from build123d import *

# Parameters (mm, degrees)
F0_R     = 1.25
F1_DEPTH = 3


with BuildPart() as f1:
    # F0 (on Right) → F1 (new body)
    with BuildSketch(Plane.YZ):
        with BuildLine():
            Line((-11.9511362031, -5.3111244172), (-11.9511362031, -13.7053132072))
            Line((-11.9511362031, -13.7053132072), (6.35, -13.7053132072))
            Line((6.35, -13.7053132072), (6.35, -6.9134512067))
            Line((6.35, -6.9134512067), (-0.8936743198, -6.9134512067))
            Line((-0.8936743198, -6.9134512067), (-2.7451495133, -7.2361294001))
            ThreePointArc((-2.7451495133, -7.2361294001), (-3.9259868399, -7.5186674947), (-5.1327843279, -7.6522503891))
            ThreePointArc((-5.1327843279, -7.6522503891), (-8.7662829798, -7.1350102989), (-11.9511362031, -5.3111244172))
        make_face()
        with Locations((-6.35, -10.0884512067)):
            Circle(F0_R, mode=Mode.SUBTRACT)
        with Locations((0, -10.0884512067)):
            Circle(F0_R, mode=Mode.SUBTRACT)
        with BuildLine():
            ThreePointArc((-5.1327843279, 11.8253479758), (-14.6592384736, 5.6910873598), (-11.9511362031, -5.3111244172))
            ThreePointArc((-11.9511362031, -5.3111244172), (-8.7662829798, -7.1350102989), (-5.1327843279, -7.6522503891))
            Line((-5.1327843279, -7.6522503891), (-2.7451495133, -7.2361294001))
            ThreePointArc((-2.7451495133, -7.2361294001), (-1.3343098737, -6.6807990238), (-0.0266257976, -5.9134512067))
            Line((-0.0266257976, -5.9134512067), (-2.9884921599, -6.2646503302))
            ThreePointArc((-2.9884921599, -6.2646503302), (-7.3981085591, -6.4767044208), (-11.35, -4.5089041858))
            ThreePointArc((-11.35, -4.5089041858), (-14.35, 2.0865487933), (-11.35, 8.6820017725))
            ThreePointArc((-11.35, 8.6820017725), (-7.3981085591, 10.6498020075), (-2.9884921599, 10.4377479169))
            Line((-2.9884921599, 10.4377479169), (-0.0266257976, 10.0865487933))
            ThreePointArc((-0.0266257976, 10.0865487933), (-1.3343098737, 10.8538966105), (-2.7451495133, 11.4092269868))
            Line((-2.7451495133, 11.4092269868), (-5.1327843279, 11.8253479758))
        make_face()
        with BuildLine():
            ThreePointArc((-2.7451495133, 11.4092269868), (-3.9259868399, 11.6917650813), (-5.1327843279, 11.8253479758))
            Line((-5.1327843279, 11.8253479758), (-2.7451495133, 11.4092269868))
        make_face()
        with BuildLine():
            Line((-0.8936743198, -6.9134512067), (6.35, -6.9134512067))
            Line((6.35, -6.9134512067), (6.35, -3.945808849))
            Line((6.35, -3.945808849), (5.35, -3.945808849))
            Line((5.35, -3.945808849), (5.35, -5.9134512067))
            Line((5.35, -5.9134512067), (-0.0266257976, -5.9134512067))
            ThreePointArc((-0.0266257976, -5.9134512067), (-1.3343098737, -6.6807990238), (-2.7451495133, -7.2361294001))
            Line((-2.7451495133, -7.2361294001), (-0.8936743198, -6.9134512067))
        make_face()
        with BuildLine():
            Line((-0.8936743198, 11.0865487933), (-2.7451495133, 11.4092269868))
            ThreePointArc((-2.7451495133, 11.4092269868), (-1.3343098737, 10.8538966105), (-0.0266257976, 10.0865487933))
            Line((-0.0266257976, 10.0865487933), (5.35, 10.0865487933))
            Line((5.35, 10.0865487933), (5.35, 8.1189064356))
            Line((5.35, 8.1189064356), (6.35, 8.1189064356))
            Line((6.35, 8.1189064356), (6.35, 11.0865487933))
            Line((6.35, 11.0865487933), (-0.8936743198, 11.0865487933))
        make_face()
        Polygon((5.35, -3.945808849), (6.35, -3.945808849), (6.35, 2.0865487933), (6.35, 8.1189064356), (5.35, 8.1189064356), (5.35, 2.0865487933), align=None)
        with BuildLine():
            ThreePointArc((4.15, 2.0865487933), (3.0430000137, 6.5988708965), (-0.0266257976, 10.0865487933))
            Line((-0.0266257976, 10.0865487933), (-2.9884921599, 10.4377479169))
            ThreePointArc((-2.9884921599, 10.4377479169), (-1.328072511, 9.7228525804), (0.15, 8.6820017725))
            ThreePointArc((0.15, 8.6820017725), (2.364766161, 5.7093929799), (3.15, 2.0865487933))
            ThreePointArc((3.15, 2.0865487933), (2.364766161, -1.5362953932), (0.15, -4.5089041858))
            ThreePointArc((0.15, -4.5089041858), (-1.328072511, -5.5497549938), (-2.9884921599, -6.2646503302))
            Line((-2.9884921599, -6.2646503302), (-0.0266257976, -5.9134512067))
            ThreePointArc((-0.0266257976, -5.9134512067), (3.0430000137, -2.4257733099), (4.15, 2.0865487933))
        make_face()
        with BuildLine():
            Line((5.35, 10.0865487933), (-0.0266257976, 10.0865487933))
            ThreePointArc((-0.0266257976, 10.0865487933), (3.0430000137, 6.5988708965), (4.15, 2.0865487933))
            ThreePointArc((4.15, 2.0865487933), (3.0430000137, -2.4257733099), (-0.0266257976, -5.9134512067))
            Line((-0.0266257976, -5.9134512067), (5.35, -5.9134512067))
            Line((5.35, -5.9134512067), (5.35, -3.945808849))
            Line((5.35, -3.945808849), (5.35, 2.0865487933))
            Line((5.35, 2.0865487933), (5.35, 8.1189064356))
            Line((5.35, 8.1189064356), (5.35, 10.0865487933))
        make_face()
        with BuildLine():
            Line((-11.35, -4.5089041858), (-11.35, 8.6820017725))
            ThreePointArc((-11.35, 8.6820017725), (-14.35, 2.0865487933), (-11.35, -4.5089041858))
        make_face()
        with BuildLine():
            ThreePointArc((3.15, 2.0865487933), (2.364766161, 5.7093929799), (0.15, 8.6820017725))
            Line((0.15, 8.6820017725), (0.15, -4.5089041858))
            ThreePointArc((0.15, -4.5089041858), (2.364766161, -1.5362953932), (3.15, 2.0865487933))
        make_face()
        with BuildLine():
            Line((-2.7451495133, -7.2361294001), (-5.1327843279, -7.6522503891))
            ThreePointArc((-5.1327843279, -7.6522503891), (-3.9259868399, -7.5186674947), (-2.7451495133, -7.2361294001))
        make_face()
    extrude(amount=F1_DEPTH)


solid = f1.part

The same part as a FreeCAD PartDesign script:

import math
import FreeCAD as App
import Part
import Sketcher
from FreeCAD import Vector

doc = App.newDocument("Part")
body = doc.addObject("PartDesign::Body", "Body")

# Sketch on YZ plane
sketch1 = body.newObject("Sketcher::SketchObject", "Sketch")
sketch1.AttachmentSupport = (doc.getObject("YZ_Plane"), [""])
sketch1.MapMode = "FlatFace"
sketch1.addGeometry([
    Part.LineSegment(Vector(6.3, -13.7, 0), Vector(6.3, 11.1, 0)),  # 0
    Part.LineSegment(Vector(6.3, 11.1, 0), Vector(-0.9, 11.1, 0)),  # 1
    Part.LineSegment(Vector(-0.9, 11.1, 0), Vector(-2.7, 11.4, 0)),  # 2
    Part.ArcOfCircle(Part.Circle(Vector(-5.6, 2.1, 0), Vector(0, 0, 1), 9.8), math.radians(72.97), math.radians(87.25)),  # 3
    Part.ArcOfCircle(Part.Circle(Vector(-5.6, 2.1, 0), Vector(0, 0, 1), 9.8), math.radians(87), math.radians(229)),  # 4
    Part.LineSegment(Vector(-12, -5.3, 0), Vector(-12, -13.7, 0)),  # 5
    Part.LineSegment(Vector(-12, -13.7, 0), Vector(6.3, -13.7, 0)),  # 6
    Part.ArcOfCircle(Part.Circle(Vector(-5.6, 2.1, 0), Vector(0, 0, 1), 8.8), math.radians(-131), math.radians(-73)),  # 7
    Part.LineSegment(Vector(-11.3, -4.5, 0), Vector(-11.3, 8.7, 0)),  # 8
    Part.ArcOfCircle(Part.Circle(Vector(-5.6, 2.1, 0), Vector(0, 0, 1), 8.8), math.radians(73), math.radians(131)),  # 9
    Part.ArcOfCircle(Part.Circle(Vector(-5.6, 2.1, 0), Vector(0, 0, 1), 8.8), math.radians(49), math.radians(73)),  # 10
    Part.LineSegment(Vector(0.1, 8.7, 0), Vector(0.1, -4.5, 0)),  # 11
    Part.ArcOfCircle(Part.Circle(Vector(-5.6, 2.1, 0), Vector(0, 0, 1), 8.7), math.radians(-73), math.radians(-49)),  # 12
    Part.Circle(Vector(-6.3, -10.1, 0), Vector(0, 0, 1), 1.2),  # 13
    Part.Circle(Vector(0, -10.1, 0), Vector(0, 0, 1), 1.2),  # 14
], False)
sketch1.addConstraint([
    Sketcher.Constraint("Coincident", 0, 2, 1, 1),
    Sketcher.Constraint("Coincident", 1, 2, 2, 1),
    Sketcher.Constraint("Coincident", 2, 2, 3, 1),
    Sketcher.Constraint("Tangent", 3, 2, 4, 1),
    Sketcher.Constraint("Coincident", 4, 2, 5, 1),
    Sketcher.Constraint("Coincident", 5, 2, 6, 1),
    Sketcher.Constraint("Coincident", 6, 2, 0, 1),
    Sketcher.Constraint("Coincident", 7, 1, 8, 1),
    Sketcher.Constraint("Coincident", 8, 2, 9, 2),
    Sketcher.Constraint("Tangent", 9, 1, 10, 2),
    Sketcher.Constraint("Coincident", 10, 1, 11, 1),
    Sketcher.Constraint("Coincident", 11, 2, 12, 2),
    Sketcher.Constraint("Tangent", 12, 1, 7, 2),
    Sketcher.Constraint("Vertical", 0),
    Sketcher.Constraint("Horizontal", 1),
    Sketcher.Constraint("Vertical", 5),
    Sketcher.Constraint("Horizontal", 6),
    Sketcher.Constraint("Vertical", 8),
    Sketcher.Constraint("Vertical", 11),
    Sketcher.Constraint("Coincident", 7, 3, 3, 3),
    Sketcher.Constraint("Coincident", 9, 3, 3, 3),
    Sketcher.Constraint("Equal", 3, 4),
    Sketcher.Constraint("Equal", 7, 9),
    Sketcher.Constraint("Equal", 9, 10),
    Sketcher.Constraint("Equal", 10, 12),
    Sketcher.Constraint("Equal", 13, 14),
    Sketcher.Constraint("PointOnObject", 14, 3, -2),
    Sketcher.Constraint("Horizontal", 13, 3, 14, 3),
    Sketcher.Constraint("Horizontal", 8, 2, 10, 1),
    Sketcher.Constraint("Vertical", 9, 1, 12, 1),
    Sketcher.Constraint("Diameter", 13, 2.5),
    Sketcher.Constraint("Radius", 3, 9.75),
    Sketcher.Constraint("Radius", 7, 8.75),
    Sketcher.Constraint("DistanceY", 12, 3, 0, 2, 9.0),
    Sketcher.Constraint("DistanceX", 7, 1, 13, 3, 5.0),
    Sketcher.Constraint("DistanceX", 3, 3, -1, 1, 5.6),
    Sketcher.Constraint("DistanceX", 13, 3, 6, 2, 12.7),
    Sketcher.Constraint("DistanceX", 10, 1, 0, 2, 6.2),
    Sketcher.Constraint("DistanceY", -1, 1, 8, 2, 8.682002),
    Sketcher.Constraint("DistanceY", 13, 3, 3, 3, 12.175),
    Sketcher.Constraint("DistanceY", 5, 2, 5, 1, 8.394189),
    Sketcher.Constraint("DistanceY", 1, 2, 3, 2, 0.738799),
    Sketcher.Constraint("DistanceY", 9, 1, 1, 2, 0.648801),
    Sketcher.Constraint("DistanceX", 1, 2, 1, 1, 7.243674),
    Sketcher.Constraint("DistanceX", 6, 1, 6, 2, 18.301136),
    Sketcher.Constraint("DistanceX", 2, 2, -1, 1, 2.74515),
])
pad1 = body.newObject("PartDesign::Pad", "Pad")
pad1.Profile = sketch1
pad1.Length = 3

doc.recompute()
